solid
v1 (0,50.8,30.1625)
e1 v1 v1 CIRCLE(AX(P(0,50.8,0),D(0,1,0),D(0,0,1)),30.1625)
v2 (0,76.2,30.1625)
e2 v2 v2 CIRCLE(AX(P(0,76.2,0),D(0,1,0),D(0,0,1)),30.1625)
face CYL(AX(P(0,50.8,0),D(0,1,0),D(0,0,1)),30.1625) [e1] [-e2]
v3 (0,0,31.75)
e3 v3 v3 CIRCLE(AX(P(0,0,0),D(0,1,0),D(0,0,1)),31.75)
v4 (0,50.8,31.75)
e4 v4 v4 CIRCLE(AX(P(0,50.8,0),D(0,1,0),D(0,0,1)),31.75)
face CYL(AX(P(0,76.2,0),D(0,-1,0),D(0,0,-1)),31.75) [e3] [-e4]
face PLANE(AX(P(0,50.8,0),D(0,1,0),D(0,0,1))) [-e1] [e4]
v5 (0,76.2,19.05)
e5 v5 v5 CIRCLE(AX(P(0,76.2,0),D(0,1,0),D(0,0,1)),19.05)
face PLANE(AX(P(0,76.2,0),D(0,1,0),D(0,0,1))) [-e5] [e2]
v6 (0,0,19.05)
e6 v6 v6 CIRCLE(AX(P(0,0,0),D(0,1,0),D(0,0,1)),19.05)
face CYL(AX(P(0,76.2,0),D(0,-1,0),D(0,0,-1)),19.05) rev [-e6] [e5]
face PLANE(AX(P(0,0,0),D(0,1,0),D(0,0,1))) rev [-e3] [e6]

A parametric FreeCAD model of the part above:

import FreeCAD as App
import Part
import Sketcher
from FreeCAD import Vector
Q = App.Units.Quantity

doc = App.newDocument("Part")
body = doc.addObject("PartDesign::Body", "Body")

# Sketch on XZ plane
sketch1 = doc.addObject("Sketcher::SketchObject", "Sketch")
body.addObject(sketch1)
sketch1.AttachmentSupport = (doc.XZ_Plane, [""])
sketch1.MapMode = "FlatFace"
sketch1.addGeometry([
    Part.Circle(Vector(0, 0, 0), Vector(0, 0, 1), 32),
    Part.Circle(Vector(0, 0, 0), Vector(0, 0, 1), 19),
], False)
sketch1.addConstraint([
    Sketcher.Constraint("Coincident", 0, 3, -1, 1),
    Sketcher.Constraint("Coincident", 1, 3, -1, 1),
    Sketcher.Constraint("Diameter", 0, Q("2.5 in")),
    Sketcher.Constraint("Diameter", 1, Q("1.5 in")),
])
pad1 = doc.addObject("PartDesign::Pad", "Pad")
body.addObject(pad1)
pad1.Profile = sketch1
pad1.Length = Q("3 in")
pad1.Reversed = True

# Sketch on XZ plane
sketch2 = doc.addObject("Sketcher::SketchObject", "Sketch001")
body.addObject(sketch2)
sketch2.AttachmentSupport = (doc.XZ_Plane, [""])
sketch2.MapMode = "FlatFace"
sketch2.AttachmentOffset = App.Placement(Vector(0, 0, -3 * 25.4), App.Rotation())
sketch2.addGeometry([
    Part.Circle(Vector(0, 0, 0), Vector(0, 0, 1), 32),
    Part.Circle(Vector(0, 0, 0), Vector(0, 0, 1), 30),
], False)
sketch2.addConstraint([
    Sketcher.Constraint("Coincident", 0, 3, -1, 1),
    Sketcher.Constraint("Coincident", 1, 3, -1, 1),
    Sketcher.Constraint("Diameter", 0, Q("2.5 in")),
    Sketcher.Constraint("Diameter", 1, Q("2.375 in")),
])
pocket1 = doc.addObject("PartDesign::Pocket", "Pocket")
body.addObject(pocket1)
pocket1.Profile = sketch2
pocket1.Length = Q("1 in")
pocket1.Reversed = True

doc.recompute()
